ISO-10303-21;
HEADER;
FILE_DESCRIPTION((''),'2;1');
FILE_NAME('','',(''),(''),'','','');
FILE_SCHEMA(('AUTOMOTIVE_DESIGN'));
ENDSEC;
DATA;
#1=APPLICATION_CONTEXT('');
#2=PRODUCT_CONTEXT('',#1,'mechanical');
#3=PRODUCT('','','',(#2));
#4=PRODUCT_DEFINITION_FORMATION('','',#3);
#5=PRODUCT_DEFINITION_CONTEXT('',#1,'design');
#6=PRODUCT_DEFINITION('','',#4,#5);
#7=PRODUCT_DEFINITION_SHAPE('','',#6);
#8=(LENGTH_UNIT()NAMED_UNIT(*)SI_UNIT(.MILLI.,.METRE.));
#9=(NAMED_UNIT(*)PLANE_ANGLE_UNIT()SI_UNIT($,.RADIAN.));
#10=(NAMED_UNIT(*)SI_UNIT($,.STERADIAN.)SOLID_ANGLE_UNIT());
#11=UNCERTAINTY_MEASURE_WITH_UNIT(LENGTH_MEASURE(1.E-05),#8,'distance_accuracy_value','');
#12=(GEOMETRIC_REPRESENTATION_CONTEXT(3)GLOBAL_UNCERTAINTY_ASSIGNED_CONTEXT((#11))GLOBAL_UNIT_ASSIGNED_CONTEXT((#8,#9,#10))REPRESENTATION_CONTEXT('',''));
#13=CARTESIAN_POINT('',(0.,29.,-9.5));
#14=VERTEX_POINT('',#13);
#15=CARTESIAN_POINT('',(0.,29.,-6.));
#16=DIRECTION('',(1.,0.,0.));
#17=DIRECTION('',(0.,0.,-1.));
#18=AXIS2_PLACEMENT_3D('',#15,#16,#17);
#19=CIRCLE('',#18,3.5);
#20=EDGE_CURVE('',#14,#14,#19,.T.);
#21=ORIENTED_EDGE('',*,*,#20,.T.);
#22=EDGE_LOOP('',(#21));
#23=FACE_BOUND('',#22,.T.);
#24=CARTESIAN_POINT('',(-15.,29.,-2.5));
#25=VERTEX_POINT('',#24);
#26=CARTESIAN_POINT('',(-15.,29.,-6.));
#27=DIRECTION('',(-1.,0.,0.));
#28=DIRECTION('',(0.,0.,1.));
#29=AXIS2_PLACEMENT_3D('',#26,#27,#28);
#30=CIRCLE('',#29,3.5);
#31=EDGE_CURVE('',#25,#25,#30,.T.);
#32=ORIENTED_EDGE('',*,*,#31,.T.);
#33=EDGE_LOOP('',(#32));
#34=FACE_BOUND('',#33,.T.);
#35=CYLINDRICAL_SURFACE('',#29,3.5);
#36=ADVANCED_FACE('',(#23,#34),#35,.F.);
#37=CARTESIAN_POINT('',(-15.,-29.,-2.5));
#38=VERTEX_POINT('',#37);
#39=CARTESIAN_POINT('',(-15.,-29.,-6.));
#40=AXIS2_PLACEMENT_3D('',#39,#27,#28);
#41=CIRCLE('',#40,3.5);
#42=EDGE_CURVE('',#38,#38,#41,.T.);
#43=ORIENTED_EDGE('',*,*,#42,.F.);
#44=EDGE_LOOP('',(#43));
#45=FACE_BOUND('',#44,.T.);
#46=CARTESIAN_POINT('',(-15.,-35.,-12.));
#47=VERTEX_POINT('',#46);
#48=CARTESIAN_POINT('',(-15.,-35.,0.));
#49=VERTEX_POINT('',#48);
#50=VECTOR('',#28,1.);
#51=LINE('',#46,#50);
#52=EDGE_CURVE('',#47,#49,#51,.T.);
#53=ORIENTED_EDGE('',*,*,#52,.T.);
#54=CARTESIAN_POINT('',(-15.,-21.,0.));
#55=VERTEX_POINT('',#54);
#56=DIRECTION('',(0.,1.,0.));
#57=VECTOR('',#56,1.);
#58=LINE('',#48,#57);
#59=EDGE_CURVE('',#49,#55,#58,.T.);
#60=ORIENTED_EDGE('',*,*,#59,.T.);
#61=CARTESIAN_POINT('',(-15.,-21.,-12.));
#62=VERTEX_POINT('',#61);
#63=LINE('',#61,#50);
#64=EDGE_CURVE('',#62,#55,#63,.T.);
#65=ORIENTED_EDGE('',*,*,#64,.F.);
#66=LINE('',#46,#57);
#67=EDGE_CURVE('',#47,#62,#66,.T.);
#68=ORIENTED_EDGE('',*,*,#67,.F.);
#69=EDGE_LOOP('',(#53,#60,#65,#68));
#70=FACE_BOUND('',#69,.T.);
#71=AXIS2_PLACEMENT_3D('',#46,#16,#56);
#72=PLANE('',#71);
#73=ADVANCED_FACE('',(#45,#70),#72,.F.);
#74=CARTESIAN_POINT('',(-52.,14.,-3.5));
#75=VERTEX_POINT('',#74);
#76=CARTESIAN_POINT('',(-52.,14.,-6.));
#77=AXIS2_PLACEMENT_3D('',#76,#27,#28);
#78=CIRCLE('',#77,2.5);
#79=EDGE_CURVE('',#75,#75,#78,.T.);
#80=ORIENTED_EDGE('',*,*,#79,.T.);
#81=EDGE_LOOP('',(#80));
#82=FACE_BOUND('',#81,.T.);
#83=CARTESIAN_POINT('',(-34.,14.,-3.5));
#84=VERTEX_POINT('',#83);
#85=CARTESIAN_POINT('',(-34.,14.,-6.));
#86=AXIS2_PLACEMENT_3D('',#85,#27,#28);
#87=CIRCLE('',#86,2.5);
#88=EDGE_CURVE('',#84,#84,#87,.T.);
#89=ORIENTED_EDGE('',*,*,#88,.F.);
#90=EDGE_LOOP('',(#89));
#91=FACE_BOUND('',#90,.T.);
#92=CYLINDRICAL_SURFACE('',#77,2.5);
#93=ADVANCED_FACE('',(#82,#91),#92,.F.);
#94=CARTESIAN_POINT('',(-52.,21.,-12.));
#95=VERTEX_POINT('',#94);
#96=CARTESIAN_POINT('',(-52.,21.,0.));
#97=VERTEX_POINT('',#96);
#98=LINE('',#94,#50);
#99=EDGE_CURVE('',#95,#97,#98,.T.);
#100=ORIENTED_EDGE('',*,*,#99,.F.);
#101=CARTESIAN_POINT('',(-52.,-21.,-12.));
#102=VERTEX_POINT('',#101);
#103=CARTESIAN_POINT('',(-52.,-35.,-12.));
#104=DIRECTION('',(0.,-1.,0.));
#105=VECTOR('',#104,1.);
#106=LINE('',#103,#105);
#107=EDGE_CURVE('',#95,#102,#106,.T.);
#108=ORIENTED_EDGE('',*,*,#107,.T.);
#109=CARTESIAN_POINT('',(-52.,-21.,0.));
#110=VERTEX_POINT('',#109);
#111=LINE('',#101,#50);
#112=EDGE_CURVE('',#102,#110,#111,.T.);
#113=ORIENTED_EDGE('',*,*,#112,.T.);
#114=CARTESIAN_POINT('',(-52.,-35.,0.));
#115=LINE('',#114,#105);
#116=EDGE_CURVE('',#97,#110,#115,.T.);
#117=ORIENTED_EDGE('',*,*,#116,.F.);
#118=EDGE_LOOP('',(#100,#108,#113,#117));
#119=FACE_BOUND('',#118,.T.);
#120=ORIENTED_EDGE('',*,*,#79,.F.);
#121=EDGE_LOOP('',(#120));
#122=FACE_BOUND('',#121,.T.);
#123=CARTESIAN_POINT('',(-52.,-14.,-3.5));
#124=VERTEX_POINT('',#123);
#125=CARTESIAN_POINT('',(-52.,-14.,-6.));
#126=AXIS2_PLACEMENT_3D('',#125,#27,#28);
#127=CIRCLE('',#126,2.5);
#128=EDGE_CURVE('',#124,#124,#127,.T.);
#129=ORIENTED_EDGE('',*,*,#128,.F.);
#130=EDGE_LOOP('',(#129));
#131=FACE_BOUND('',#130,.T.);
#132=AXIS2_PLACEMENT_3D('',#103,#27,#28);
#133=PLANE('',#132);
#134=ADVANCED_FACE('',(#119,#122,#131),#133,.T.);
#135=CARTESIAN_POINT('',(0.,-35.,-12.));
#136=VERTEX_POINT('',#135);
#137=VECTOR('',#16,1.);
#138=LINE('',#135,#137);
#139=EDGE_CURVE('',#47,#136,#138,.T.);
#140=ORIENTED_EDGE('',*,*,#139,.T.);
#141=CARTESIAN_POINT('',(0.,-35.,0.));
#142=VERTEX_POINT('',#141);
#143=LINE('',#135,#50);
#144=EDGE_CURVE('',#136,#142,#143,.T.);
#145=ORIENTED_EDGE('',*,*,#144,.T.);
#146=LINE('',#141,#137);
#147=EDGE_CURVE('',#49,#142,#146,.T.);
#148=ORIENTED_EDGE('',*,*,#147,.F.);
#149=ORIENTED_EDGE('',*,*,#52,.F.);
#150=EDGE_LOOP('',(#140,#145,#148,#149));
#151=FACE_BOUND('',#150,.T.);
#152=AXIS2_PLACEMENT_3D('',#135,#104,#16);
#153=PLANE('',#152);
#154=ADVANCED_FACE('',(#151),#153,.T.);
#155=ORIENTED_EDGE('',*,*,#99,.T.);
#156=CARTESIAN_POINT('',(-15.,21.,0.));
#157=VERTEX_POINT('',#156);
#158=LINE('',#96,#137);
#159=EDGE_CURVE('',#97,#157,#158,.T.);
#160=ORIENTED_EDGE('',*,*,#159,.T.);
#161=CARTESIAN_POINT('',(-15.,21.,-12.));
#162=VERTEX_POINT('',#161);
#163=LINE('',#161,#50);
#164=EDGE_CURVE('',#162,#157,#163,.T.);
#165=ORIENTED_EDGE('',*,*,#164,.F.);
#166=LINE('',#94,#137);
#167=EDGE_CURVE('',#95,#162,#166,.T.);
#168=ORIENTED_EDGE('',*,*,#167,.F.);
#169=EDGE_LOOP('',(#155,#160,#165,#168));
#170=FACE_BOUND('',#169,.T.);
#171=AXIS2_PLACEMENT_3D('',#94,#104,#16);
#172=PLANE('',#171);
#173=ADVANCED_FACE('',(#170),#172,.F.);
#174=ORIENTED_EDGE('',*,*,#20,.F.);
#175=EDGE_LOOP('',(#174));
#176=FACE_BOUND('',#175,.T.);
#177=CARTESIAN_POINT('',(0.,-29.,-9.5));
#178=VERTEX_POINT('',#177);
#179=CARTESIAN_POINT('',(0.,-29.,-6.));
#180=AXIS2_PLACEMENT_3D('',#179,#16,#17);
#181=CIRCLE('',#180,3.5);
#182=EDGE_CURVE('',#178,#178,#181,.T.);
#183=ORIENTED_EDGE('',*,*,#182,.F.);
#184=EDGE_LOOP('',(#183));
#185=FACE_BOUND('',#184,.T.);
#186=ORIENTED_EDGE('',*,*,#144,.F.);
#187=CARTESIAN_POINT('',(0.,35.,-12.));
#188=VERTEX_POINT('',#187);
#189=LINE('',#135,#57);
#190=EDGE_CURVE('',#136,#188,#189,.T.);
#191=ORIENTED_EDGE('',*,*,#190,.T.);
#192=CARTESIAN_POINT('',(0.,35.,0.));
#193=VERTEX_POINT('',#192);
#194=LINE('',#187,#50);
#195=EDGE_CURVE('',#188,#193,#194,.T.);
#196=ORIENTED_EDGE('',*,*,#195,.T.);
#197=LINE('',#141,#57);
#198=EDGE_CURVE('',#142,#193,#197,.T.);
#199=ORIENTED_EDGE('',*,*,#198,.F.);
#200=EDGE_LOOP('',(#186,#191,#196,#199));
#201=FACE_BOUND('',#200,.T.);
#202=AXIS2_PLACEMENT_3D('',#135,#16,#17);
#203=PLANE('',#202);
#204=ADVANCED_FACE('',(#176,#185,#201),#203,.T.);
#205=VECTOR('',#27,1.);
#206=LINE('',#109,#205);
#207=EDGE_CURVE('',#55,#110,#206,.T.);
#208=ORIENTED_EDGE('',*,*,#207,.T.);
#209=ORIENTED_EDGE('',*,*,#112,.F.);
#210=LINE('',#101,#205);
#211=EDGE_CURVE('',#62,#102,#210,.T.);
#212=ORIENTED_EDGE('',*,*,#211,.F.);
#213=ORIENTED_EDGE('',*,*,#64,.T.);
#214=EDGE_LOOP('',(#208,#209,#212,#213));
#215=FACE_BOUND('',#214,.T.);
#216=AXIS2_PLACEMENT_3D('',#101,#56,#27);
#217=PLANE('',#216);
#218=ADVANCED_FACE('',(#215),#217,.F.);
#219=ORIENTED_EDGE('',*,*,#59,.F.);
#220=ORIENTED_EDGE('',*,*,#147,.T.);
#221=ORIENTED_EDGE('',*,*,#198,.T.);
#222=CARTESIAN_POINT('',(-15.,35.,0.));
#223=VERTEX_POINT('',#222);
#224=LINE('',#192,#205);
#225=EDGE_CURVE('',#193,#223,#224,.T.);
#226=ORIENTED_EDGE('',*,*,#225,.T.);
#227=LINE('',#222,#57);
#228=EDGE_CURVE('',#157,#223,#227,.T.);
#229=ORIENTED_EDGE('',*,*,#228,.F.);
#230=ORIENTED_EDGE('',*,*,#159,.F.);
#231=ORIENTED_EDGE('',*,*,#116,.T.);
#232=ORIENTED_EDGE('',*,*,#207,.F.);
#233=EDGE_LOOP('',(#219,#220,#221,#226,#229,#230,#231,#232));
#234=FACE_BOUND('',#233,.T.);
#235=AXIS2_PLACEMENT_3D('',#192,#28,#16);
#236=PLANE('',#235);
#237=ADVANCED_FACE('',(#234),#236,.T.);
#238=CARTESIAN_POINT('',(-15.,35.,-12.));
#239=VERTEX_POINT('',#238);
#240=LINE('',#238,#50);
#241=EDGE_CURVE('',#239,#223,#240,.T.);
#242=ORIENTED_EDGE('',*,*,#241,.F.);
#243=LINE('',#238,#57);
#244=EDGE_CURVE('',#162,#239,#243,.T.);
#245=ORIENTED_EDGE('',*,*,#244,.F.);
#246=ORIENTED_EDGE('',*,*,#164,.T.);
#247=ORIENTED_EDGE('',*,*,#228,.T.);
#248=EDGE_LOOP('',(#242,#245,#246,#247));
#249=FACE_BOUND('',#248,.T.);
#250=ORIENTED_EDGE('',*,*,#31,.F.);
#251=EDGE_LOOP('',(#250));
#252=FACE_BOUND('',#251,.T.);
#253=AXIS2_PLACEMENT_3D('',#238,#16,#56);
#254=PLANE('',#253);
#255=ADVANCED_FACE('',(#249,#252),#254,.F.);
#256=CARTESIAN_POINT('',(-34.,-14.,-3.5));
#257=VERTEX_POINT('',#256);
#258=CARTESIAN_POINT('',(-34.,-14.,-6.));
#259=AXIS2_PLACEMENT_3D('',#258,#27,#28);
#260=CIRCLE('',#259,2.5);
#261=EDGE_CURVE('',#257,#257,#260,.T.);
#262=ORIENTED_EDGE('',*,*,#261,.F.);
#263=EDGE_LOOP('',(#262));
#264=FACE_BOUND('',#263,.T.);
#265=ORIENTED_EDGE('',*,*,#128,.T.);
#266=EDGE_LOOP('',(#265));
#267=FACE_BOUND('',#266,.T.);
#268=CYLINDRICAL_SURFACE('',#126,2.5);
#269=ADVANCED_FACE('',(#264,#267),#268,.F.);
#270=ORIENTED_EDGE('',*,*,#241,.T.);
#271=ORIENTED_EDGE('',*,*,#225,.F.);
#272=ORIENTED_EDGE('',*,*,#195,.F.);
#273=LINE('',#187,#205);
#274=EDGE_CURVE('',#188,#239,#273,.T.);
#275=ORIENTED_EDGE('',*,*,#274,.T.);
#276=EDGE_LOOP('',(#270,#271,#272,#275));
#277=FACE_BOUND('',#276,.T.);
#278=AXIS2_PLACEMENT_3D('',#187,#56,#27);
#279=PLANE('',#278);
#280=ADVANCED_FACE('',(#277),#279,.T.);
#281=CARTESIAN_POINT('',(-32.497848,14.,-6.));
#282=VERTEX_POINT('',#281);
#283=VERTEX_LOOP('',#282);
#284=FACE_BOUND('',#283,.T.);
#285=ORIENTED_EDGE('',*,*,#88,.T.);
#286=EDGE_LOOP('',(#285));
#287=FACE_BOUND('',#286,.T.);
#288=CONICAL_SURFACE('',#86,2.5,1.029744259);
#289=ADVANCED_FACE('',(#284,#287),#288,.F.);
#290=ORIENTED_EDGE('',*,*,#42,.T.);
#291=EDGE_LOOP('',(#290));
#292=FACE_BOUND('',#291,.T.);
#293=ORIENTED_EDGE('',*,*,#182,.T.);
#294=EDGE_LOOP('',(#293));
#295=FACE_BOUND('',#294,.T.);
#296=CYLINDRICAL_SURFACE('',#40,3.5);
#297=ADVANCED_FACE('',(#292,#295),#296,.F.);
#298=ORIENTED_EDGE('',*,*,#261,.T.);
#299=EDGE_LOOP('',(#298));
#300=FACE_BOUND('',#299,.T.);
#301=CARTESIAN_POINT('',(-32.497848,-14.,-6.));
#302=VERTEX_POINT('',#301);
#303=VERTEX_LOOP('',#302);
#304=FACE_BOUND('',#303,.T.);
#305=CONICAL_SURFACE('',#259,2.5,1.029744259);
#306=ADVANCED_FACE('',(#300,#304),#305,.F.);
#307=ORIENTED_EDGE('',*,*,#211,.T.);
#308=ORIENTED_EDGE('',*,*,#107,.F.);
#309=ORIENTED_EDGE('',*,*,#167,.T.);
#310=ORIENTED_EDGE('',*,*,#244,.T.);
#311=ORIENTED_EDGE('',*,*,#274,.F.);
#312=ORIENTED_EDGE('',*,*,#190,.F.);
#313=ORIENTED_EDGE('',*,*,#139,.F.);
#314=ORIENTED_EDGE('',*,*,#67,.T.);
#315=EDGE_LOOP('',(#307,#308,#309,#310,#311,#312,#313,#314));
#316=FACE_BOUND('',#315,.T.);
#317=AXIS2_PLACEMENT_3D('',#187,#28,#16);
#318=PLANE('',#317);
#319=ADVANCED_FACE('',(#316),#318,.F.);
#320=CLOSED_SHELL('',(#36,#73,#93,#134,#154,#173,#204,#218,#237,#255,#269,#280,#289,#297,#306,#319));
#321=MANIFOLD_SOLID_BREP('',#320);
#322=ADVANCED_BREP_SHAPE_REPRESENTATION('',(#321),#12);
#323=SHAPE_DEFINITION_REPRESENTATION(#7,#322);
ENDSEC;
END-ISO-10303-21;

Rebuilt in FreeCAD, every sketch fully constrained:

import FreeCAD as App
import Part
import Sketcher

V = App.Vector
Q = App.Units.Quantity

doc = App.newDocument("Part")
body = doc.addObject("PartDesign::Body", "Body")

sketch1 = body.newObject("Sketcher::SketchObject", "Sketch")
sketch1.AttachmentSupport = (doc.getObject("XY_Plane"), [""])
sketch1.MapMode = "FlatFace"
sketch1.addGeometry([
    Part.LineSegment(V(-52, 35, 0), V(-52, -35, 0)),
    Part.LineSegment(V(-52, -35, 0), V(0, -35, 0)),
    Part.LineSegment(V(0, -35, 0), V(0, 35, 0)),
    Part.LineSegment(V(0, 35, 0), V(-52, 35, 0)),
], False)
sketch1.addConstraint([
    Sketcher.Constraint("Coincident", 0, 2, 1, 1),
    Sketcher.Constraint("Coincident", 1, 2, 2, 1),
    Sketcher.Constraint("Coincident", 2, 2, 3, 1),
    Sketcher.Constraint("Coincident", 3, 2, 0, 1),
    Sketcher.Constraint("Vertical", 0),
    Sketcher.Constraint("Horizontal", 1),
    Sketcher.Constraint("Vertical", 2),
    Sketcher.Constraint("Horizontal", 3),
    Sketcher.Constraint("Symmetric", 1, 2, 2, 2, -1, 1),
    Sketcher.Constraint("DistanceX", 1, 1, 1, 2, Q("52 mm")),
    Sketcher.Constraint("DistanceY", 0, 2, 0, 1, Q("70 mm")),
])
pad1 = body.newObject("PartDesign::Pad", "Pad")
pad1.Profile = sketch1
pad1.Length = 12
pad1.Reversed = True

sketch2 = body.newObject("Sketcher::SketchObject", "Sketch001")
sketch2.AttachmentSupport = (doc.getObject("XY_Plane"), [""])
sketch2.MapMode = "FlatFace"
sketch2.addGeometry([
    Part.LineSegment(V(-52, 35, 0), V(-52, 21, 0)),
    Part.LineSegment(V(-52, 21, 0), V(-15, 21, 0)),
    Part.LineSegment(V(-15, 21, 0), V(-15, 35, 0)),
    Part.LineSegment(V(-15, 35, 0), V(-52, 35, 0)),
    Part.LineSegment(V(-52, -21, 0), V(-52, -35, 0)),
    Part.LineSegment(V(-52, -35, 0), V(-15, -35, 0)),
    Part.LineSegment(V(-15, -35, 0), V(-15, -21, 0)),
    Part.LineSegment(V(-15, -21, 0), V(-52, -21, 0)),
], False)
sketch2.addConstraint([
    Sketcher.Constraint("Coincident", 0, 2, 1, 1),
    Sketcher.Constraint("Coincident", 1, 2, 2, 1),
    Sketcher.Constraint("Coincident", 2, 2, 3, 1),
    Sketcher.Constraint("Coincident", 3, 2, 0, 1),
    Sketcher.Constraint("Coincident", 4, 2, 5, 1),
    Sketcher.Constraint("Coincident", 5, 2, 6, 1),
    Sketcher.Constraint("Coincident", 6, 2, 7, 1),
    Sketcher.Constraint("Coincident", 7, 2, 4, 1),
    Sketcher.Constraint("Vertical", 0),
    Sketcher.Constraint("Horizontal", 1),
    Sketcher.Constraint("Vertical", 2),
    Sketcher.Constraint("Horizontal", 3),
    Sketcher.Constraint("Vertical", 4),
    Sketcher.Constraint("Horizontal", 5),
    Sketcher.Constraint("Vertical", 6),
    Sketcher.Constraint("Horizontal", 7),
    Sketcher.Constraint("Symmetric", 3, 2, 4, 2, -1),
    Sketcher.Constraint("Symmetric", 1, 2, 6, 2, -1),
    Sketcher.Constraint("DistanceX", 1, 1, 1, 2, Q("37 mm")),
    Sketcher.Constraint("DistanceY", 0, 2, 0, 1, Q("14 mm")),
    Sketcher.Constraint("DistanceX", 0, 2, -1, 1, Q("52 mm")),
    Sketcher.Constraint("DistanceY", -1, 1, 0, 2, Q("21 mm")),
])
pocket1 = body.newObject("PartDesign::Pocket", "Pocket")
pocket1.Profile = sketch2
pocket1.Type = "ThroughAll"

sketch3 = body.newObject("Sketcher::SketchObject", "Sketch002")
sketch3.AttachmentSupport = (doc.getObject("YZ_Plane"), [""])
sketch3.MapMode = "FlatFace"
sketch3.AttachmentOffset = App.Placement(V(0, 0, -15), App.Rotation())
sketch3.addGeometry([
    Part.Circle(V(29, -6, 0), V(0, 0, 1), 3.5),
    Part.Circle(V(-29, -6, 0), V(0, 0, 1), 3.5),
], False)
sketch3.addConstraint([
    Sketcher.Constraint("Equal", 0, 1),
    Sketcher.Constraint("Symmetric", 0, 3, 1, 3, -2),
    Sketcher.Constraint("Diameter", 0, Q("7 mm")),
    Sketcher.Constraint("DistanceX", -1, 1, 0, 3, Q("29 mm")),
    Sketcher.Constraint("DistanceY", 0, 3, -1, 1, Q("6 mm")),
])
doc.recompute()
hole = body.newObject("PartDesign::Hole", "Hole")
hole.Profile = sketch3
hole.ThreadType = "None"
hole.Diameter = 7
hole.DepthType = "Dimension"
hole.Depth = 60
hole.DrillPoint = "Angled"
hole.DrillPointAngle = 118
hole.Reversed = True

sketch4 = body.newObject("Sketcher::SketchObject", "Sketch003")
sketch4.AttachmentSupport = (doc.getObject("YZ_Plane"), [""])
sketch4.MapMode = "FlatFace"
sketch4.AttachmentOffset = App.Placement(V(0, 0, -52), App.Rotation())
sketch4.addGeometry([
    Part.Circle(V(14, -6, 0), V(0, 0, 1), 2.5),
    Part.Circle(V(-14, -6, 0), V(0, 0, 1), 2.5),
], False)
sketch4.addConstraint([
    Sketcher.Constraint("Equal", 0, 1),
    Sketcher.Constraint("Symmetric", 0, 3, 1, 3, -2),
    Sketcher.Constraint("Diameter", 0, Q("5 mm")),
    Sketcher.Constraint("DistanceX", -1, 1, 0, 3, Q("14 mm")),
    Sketcher.Constraint("DistanceY", 0, 3, -1, 1, Q("6 mm")),
])
doc.recompute()
hole2 = body.newObject("PartDesign::Hole", "Hole001")
hole2.Profile = sketch4
hole2.ThreadType = "None"
hole2.Diameter = 5
hole2.DepthType = "Dimension"
hole2.Depth = 18
hole2.DrillPoint = "Angled"
hole2.DrillPointAngle = 118
hole2.Reversed = True

doc.recompute()
